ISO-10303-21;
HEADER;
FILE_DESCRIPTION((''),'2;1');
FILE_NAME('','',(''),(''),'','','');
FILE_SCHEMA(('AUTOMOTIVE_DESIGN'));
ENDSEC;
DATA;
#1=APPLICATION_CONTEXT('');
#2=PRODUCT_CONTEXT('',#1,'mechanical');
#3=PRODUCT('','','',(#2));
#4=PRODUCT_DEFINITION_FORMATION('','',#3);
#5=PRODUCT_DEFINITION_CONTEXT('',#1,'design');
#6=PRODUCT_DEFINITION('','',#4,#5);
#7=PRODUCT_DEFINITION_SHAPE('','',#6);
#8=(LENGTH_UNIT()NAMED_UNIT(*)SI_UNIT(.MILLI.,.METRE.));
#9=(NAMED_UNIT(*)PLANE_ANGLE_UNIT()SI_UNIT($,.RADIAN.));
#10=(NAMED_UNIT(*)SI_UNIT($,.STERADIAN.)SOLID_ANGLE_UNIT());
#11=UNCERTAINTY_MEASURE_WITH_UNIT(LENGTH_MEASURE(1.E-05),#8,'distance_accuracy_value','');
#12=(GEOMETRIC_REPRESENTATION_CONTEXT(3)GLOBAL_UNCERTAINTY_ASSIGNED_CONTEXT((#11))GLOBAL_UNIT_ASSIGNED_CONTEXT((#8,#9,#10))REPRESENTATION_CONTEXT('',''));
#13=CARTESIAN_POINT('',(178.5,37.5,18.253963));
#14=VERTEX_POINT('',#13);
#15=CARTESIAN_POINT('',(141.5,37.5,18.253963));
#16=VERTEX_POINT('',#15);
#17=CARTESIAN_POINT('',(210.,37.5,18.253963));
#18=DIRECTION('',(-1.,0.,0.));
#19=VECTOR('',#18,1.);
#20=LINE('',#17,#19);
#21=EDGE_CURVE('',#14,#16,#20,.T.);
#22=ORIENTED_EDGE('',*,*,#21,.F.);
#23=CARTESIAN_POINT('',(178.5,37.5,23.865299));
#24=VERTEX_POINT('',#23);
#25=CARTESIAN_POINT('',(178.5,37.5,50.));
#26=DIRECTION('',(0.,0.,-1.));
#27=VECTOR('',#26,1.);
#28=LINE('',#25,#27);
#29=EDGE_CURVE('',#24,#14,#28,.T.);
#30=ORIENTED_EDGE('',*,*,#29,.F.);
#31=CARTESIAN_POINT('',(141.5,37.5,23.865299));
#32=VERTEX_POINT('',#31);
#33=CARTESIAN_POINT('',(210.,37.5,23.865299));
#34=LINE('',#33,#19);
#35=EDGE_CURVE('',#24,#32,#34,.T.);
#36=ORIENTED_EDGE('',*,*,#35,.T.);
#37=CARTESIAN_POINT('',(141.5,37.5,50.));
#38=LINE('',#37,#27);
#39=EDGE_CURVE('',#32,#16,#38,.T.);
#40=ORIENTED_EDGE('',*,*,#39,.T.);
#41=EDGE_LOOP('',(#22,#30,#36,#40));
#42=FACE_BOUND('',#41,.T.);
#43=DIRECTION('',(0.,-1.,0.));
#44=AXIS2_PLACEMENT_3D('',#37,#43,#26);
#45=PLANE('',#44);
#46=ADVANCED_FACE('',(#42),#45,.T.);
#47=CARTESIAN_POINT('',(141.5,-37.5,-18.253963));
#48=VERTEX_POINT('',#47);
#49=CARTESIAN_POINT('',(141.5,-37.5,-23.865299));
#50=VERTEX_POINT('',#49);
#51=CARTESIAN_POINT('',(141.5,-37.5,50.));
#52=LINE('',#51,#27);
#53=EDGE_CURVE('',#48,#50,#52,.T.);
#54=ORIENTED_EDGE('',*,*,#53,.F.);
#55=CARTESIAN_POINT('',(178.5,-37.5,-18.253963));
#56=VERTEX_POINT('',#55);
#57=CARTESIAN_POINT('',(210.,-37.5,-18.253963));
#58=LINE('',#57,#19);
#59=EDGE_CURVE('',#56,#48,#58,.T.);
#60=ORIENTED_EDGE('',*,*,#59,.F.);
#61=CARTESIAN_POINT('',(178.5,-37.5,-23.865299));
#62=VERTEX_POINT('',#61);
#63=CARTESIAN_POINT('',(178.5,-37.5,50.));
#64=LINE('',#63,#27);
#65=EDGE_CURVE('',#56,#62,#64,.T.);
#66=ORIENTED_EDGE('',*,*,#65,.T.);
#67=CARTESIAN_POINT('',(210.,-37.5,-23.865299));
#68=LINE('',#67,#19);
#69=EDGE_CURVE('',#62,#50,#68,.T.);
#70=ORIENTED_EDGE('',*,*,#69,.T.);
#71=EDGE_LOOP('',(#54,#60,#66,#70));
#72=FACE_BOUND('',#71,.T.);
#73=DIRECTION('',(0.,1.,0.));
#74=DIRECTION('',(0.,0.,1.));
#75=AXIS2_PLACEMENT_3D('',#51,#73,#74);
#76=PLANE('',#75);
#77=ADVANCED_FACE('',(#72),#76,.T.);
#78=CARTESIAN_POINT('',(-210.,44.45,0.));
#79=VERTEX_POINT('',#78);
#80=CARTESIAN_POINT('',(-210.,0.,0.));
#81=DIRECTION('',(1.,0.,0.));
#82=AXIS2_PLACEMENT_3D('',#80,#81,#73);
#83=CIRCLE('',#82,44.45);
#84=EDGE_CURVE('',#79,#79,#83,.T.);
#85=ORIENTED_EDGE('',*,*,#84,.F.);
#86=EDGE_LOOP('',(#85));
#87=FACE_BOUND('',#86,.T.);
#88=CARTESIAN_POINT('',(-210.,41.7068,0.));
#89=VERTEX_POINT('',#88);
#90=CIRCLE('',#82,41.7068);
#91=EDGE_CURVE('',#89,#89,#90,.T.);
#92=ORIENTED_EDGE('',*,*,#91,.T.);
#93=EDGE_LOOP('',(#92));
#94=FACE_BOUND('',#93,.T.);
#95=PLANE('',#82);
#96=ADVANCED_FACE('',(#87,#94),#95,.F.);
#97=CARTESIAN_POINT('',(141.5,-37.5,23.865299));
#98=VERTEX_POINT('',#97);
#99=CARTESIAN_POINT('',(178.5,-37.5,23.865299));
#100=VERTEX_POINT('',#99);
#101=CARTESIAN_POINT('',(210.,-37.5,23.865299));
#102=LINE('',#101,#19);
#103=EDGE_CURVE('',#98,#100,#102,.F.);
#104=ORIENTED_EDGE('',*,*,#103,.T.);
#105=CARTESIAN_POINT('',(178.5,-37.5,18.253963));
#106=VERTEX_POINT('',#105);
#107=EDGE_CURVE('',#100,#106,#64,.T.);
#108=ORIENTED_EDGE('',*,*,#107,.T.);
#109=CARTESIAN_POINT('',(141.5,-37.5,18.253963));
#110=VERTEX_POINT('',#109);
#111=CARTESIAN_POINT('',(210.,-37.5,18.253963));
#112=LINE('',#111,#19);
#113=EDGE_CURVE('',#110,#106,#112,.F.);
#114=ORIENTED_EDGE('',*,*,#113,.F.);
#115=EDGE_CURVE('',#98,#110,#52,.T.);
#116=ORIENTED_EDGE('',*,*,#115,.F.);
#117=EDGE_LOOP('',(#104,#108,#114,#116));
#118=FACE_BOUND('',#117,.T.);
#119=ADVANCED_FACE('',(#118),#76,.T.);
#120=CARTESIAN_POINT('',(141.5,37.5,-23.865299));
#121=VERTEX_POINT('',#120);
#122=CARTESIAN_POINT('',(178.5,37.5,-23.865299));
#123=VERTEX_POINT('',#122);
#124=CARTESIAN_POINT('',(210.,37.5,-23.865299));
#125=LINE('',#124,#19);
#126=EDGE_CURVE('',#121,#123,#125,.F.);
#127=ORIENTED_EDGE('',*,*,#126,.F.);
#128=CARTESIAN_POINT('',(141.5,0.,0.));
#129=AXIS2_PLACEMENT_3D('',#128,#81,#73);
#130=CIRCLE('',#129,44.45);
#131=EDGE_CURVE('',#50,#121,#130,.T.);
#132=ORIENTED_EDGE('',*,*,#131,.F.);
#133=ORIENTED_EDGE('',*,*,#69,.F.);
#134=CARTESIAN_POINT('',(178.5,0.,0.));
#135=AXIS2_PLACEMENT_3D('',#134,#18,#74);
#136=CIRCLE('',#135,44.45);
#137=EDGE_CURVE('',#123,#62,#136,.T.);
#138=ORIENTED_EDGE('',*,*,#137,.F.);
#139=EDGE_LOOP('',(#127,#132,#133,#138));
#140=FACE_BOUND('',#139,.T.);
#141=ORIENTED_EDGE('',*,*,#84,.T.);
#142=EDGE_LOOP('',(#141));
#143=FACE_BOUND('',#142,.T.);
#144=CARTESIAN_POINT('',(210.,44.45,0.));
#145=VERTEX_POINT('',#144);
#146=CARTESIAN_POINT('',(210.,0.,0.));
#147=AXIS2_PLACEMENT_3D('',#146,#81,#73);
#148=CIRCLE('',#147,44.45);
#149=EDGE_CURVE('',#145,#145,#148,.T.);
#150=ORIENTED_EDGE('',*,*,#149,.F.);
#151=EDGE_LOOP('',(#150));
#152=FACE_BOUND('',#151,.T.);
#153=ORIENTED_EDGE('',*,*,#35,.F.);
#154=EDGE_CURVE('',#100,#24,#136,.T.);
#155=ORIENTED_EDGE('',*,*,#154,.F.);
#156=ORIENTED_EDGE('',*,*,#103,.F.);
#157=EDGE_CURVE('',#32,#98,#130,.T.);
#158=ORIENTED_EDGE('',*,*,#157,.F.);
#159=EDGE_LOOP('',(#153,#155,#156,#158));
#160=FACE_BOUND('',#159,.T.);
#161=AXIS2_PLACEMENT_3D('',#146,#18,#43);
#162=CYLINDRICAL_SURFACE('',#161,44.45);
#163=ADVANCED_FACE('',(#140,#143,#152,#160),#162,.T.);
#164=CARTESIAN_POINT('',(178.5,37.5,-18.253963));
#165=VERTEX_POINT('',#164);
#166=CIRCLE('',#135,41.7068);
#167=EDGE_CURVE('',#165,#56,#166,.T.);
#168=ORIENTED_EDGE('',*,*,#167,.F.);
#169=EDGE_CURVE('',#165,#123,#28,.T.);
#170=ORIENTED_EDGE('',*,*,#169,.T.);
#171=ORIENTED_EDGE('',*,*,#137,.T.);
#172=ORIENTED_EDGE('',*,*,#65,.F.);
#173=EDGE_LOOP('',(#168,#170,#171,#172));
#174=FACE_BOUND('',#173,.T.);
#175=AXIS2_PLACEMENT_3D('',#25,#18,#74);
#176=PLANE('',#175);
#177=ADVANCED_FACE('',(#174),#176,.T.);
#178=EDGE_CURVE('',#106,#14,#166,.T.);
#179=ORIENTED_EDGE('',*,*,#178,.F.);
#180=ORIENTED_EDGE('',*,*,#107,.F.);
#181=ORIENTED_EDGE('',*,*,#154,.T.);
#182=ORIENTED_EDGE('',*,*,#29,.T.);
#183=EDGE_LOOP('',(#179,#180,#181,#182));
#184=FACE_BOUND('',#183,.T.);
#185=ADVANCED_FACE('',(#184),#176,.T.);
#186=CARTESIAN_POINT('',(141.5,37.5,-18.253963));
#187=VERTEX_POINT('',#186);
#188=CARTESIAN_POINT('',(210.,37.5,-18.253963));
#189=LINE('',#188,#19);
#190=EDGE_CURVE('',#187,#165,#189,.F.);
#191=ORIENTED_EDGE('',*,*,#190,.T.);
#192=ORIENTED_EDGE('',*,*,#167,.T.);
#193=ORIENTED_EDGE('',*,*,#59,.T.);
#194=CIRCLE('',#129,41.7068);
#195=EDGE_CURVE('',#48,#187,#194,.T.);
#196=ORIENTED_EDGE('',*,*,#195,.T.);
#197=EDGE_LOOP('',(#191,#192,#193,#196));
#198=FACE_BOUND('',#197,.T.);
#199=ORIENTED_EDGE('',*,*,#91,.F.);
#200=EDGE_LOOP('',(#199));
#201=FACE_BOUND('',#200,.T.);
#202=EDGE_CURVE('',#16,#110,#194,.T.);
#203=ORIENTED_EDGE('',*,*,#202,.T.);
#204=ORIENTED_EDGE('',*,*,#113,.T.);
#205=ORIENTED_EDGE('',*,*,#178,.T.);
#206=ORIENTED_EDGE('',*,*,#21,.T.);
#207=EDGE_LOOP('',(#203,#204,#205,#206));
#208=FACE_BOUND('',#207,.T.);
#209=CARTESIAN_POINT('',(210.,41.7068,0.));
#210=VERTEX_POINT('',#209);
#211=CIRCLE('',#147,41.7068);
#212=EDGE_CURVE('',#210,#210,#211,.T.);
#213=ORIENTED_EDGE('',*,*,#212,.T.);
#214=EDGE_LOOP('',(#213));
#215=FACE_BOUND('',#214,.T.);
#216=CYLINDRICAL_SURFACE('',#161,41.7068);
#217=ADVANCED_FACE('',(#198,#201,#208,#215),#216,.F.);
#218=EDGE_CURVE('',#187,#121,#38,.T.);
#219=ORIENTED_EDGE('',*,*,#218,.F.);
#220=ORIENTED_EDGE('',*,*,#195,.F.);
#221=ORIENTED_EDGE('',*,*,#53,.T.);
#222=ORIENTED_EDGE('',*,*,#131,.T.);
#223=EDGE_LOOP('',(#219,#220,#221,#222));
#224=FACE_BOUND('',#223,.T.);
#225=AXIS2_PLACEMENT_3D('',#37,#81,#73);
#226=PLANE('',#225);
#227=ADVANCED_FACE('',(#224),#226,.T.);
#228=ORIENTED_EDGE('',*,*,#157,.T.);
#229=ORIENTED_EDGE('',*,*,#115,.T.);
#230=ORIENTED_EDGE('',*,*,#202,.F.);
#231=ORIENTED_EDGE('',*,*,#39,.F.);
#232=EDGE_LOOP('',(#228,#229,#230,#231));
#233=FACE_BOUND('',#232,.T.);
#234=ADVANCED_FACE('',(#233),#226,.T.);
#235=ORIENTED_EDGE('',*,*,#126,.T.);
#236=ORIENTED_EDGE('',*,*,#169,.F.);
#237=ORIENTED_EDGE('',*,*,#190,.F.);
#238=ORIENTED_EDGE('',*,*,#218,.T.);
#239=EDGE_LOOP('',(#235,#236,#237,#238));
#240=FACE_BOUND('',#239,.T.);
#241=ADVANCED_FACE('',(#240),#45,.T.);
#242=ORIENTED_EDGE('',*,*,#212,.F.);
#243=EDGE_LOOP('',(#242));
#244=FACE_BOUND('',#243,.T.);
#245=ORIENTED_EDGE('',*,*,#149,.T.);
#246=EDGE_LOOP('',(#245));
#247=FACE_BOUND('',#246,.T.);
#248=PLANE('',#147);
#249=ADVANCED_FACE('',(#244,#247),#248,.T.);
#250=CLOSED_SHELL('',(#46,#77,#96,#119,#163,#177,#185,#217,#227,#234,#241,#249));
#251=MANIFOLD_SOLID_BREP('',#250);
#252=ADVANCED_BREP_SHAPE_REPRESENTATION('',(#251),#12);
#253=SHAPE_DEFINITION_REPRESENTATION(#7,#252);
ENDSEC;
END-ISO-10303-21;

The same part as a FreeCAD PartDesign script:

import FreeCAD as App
import Part
import Sketcher

doc = App.newDocument("Part")
params = doc.addObject("Spreadsheet::Sheet", "Params")
for row, (alias, value) in enumerate([
    ("sketch1_diameter", "88.9 mm"),
    ("pad1_length", "420 mm"),
    ("sketch2_width", "37 mm"),
    ("sketch2_height", "75 mm"),
], start=1):
    params.set(f"A{row}", alias)
    params.set(f"B{row}", "=" + value)
    params.setAlias(f"B{row}", alias)

body = doc.addObject("PartDesign::Body", "Body")

# Sketch on YZ plane
sketch1 = doc.addObject("Sketcher::SketchObject", "Sketch")
body.addObject(sketch1)
sketch1.AttachmentSupport = (doc.YZ_Plane, [""])
sketch1.MapMode = "FlatFace"
sketch1.AttachmentOffset = App.Placement(App.Vector(0, 0, -210), App.Rotation())
sketch1.addGeometry([
    Part.Circle(App.Vector(0, 0, 0), App.Vector(0, 0, 1), 44),
    Part.Circle(App.Vector(0, 0, 0), App.Vector(0, 0, 1), 42),
], False)
sketch1.addConstraint([
    Sketcher.Constraint("Coincident", 0, 3, -1, 1),
    Sketcher.Constraint("Coincident", 1, 3, -1, 1),
    Sketcher.Constraint("Diameter", 0, 88.9),
    Sketcher.Constraint("Diameter", 1, 83.4136),
])
sketch1.setExpression("Constraints[2]", "Params.sketch1_diameter")
pad1 = doc.addObject("PartDesign::Pad", "Pad")
body.addObject(pad1)
pad1.Profile = sketch1
pad1.setExpression("Length", "Params.pad1_length")

# Sketch on XY plane
sketch2 = doc.addObject("Sketcher::SketchObject", "Sketch001")
body.addObject(sketch2)
sketch2.AttachmentSupport = (doc.XY_Plane, [""])
sketch2.MapMode = "FlatFace"
sketch2.addGeometry([
    Part.LineSegment(App.Vector(142, 38, 0), App.Vector(142, -38, 0)),
    Part.LineSegment(App.Vector(142, -38, 0), App.Vector(178, -38, 0)),
    Part.LineSegment(App.Vector(178, -38, 0), App.Vector(178, 38, 0)),
    Part.LineSegment(App.Vector(178, 38, 0), App.Vector(142, 38, 0)),
], False)
sketch2.addConstraint([
    Sketcher.Constraint("Coincident", 0, 2, 1, 1),
    Sketcher.Constraint("Coincident", 1, 2, 2, 1),
    Sketcher.Constraint("Coincident", 2, 2, 3, 1),
    Sketcher.Constraint("Coincident", 3, 2, 0, 1),
    Sketcher.Constraint("Vertical", 0),
    Sketcher.Constraint("Horizontal", 1),
    Sketcher.Constraint("Vertical", 2),
    Sketcher.Constraint("Horizontal", 3),
    Sketcher.Constraint("DistanceX", 1, 1, 1, 2, 37.0),
    Sketcher.Constraint("DistanceY", 0, 2, 0, 1, 75.0),
    Sketcher.Constraint("DistanceX", -1, 1, 0, 2, 141.5),
    Sketcher.Constraint("DistanceY", 0, 2, -1, 1, 37.5),
])
sketch2.setExpression("Constraints[8]", "Params.sketch2_width")
sketch2.setExpression("Constraints[9]", "Params.sketch2_height")
pocket1 = doc.addObject("PartDesign::Pocket", "Pocket")
body.addObject(pocket1)
pocket1.Profile = sketch2
pocket1.Type = "ThroughAll"
pocket1.Midplane = True

doc.recompute()
